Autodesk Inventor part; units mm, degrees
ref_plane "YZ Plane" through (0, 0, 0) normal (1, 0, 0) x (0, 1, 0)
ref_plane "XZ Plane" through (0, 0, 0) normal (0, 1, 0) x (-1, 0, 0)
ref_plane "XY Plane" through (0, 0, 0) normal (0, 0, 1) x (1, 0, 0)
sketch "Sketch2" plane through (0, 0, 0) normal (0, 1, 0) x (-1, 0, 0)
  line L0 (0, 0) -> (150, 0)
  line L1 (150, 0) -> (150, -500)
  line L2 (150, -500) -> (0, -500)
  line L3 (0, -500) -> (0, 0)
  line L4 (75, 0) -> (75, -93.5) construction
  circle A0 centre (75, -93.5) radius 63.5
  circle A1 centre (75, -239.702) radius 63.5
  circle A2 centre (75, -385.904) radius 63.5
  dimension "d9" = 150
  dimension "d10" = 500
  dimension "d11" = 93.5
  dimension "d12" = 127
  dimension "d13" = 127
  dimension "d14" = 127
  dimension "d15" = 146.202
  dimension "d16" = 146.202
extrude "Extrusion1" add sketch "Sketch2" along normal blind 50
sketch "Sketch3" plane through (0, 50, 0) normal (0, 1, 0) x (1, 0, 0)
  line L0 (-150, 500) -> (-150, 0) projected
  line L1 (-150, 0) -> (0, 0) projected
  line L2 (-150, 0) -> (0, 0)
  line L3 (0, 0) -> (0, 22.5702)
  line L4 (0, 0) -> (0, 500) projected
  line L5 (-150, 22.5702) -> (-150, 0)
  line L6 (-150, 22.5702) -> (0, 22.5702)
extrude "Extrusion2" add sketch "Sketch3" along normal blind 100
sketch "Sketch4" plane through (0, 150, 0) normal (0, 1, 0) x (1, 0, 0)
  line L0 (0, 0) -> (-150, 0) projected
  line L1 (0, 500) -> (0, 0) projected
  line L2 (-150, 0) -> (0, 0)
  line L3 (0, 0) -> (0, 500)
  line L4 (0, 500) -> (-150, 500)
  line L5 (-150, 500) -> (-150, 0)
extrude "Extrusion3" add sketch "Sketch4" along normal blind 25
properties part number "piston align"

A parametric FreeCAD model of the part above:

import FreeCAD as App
import Part
import Sketcher
from FreeCAD import Vector

doc = App.newDocument("Part")
body = doc.addObject("PartDesign::Body", "Body")

sketch1 = doc.addObject("Sketcher::SketchObject", "Sketch")
body.addObject(sketch1)
sketch1.AttachmentSupport = (doc.XZ_Plane, [""])
sketch1.MapMode = "FlatFace"
sketch1.addGeometry(Part.LineSegment(Vector(-150, 0, 0), Vector(0, 0, 0)), False)
sketch1.addGeometry(Part.LineSegment(Vector(0, 0, 0), Vector(0, -500, 0)), False)
sketch1.addGeometry(Part.LineSegment(Vector(0, -500, 0), Vector(-150, -500, 0)), False)
sketch1.addGeometry(Part.LineSegment(Vector(-150, -500, 0), Vector(-150, 0, 0)), False)
sketch1.addGeometry(Part.Circle(Vector(-75, -386, 0), Vector(0, 0, 1), 64), False)
sketch1.addGeometry(Part.Circle(Vector(-75, -240, 0), Vector(0, 0, 1), 64), False)
sketch1.addGeometry(Part.Circle(Vector(-75, -94, 0), Vector(0, 0, 1), 64), False)
sketch1.addConstraint(Sketcher.Constraint("Coincident", 0, 2, 1, 1))
sketch1.addConstraint(Sketcher.Constraint("Coincident", 1, 2, 2, 1))
sketch1.addConstraint(Sketcher.Constraint("Coincident", 2, 2, 3, 1))
sketch1.addConstraint(Sketcher.Constraint("Coincident", 3, 2, 0, 1))
sketch1.addConstraint(Sketcher.Constraint("Horizontal", 0))
sketch1.addConstraint(Sketcher.Constraint("Vertical", 1))
sketch1.addConstraint(Sketcher.Constraint("Horizontal", 2))
sketch1.addConstraint(Sketcher.Constraint("Vertical", 3))
sketch1.addConstraint(Sketcher.Constraint("Coincident", 0, 2, -1, 1))
sketch1.addConstraint(Sketcher.Constraint("Equal", 4, 5))
sketch1.addConstraint(Sketcher.Constraint("Equal", 5, 6))
sketch1.addConstraint(Sketcher.Constraint("Vertical", 4, 3, 5, 3))
sketch1.addConstraint(Sketcher.Constraint("Vertical", 5, 3, 6, 3))
sketch1.addConstraint(Sketcher.Constraint("Diameter", 4, 127.0))
sketch1.addConstraint(Sketcher.Constraint("DistanceX", 0, 1, 0, 2, 150.0))
sketch1.addConstraint(Sketcher.Constraint("DistanceY", 1, 2, 1, 1, 500.0))
sketch1.addConstraint(Sketcher.Constraint("DistanceY", 6, 3, -1, 1, 93.5))
sketch1.addConstraint(Sketcher.Constraint("DistanceX", 4, 3, -1, 1, 75.0))
sketch1.addConstraint(Sketcher.Constraint("DistanceY", 4, 3, 5, 3, 146.202))
sketch1.addConstraint(Sketcher.Constraint("DistanceY", 5, 3, 6, 3, 146.202))
pad1 = doc.addObject("PartDesign::Pad", "Pad")
body.addObject(pad1)
pad1.Profile = sketch1
pad1.Length = 50
pad1.Reversed = True

sketch2 = doc.addObject("Sketcher::SketchObject", "Sketch001")
body.addObject(sketch2)
sketch2.AttachmentSupport = (doc.XZ_Plane, [""])
sketch2.MapMode = "FlatFace"
sketch2.AttachmentOffset = App.Placement(Vector(0, 0, -50), App.Rotation())
sketch2.addGeometry(Part.LineSegment(Vector(0, -23, 0), Vector(-150, -23, 0)), False)
sketch2.addGeometry(Part.LineSegment(Vector(-150, -23, 0), Vector(-150, 0, 0)), False)
sketch2.addGeometry(Part.LineSegment(Vector(-150, 0, 0), Vector(0, 0, 0)), False)
sketch2.addGeometry(Part.LineSegment(Vector(0, 0, 0), Vector(0, -23, 0)), False)
sketch2.addConstraint(Sketcher.Constraint("Coincident", 0, 2, 1, 1))
sketch2.addConstraint(Sketcher.Constraint("Coincident", 1, 2, 2, 1))
sketch2.addConstraint(Sketcher.Constraint("Coincident", 2, 2, 3, 1))
sketch2.addConstraint(Sketcher.Constraint("Coincident", 3, 2, 0, 1))
sketch2.addConstraint(Sketcher.Constraint("Horizontal", 0))
sketch2.addConstraint(Sketcher.Constraint("Vertical", 1))
sketch2.addConstraint(Sketcher.Constraint("Horizontal", 2))
sketch2.addConstraint(Sketcher.Constraint("Vertical", 3))
sketch2.addConstraint(Sketcher.Constraint("Coincident", 2, 2, -1, 1))
sketch2.addConstraint(Sketcher.Constraint("DistanceX", 0, 2, 0, 1, 150.0))
sketch2.addConstraint(Sketcher.Constraint("DistanceY", 1, 1, 1, 2, 22.5702))
pad2 = doc.addObject("PartDesign::Pad", "Pad001")
body.addObject(pad2)
pad2.Profile = sketch2
pad2.Length = 100
pad2.Reversed = True

sketch3 = doc.addObject("Sketcher::SketchObject", "Sketch002")
body.addObject(sketch3)
sketch3.AttachmentSupport = (doc.XZ_Plane, [""])
sketch3.MapMode = "FlatFace"
sketch3.AttachmentOffset = App.Placement(Vector(0, 0, -150), App.Rotation())
sketch3.addGeometry(Part.LineSegment(Vector(-150, 0, 0), Vector(0, 0, 0)), False)
sketch3.addGeometry(Part.LineSegment(Vector(0, 0, 0), Vector(0, -500, 0)), False)
sketch3.addGeometry(Part.LineSegment(Vector(0, -500, 0), Vector(-150, -500, 0)), False)
sketch3.addGeometry(Part.LineSegment(Vector(-150, -500, 0), Vector(-150, 0, 0)), False)
sketch3.addConstraint(Sketcher.Constraint("Coincident", 0, 2, 1, 1))
sketch3.addConstraint(Sketcher.Constraint("Coincident", 1, 2, 2, 1))
sketch3.addConstraint(Sketcher.Constraint("Coincident", 2, 2, 3, 1))
sketch3.addConstraint(Sketcher.Constraint("Coincident", 3, 2, 0, 1))
sketch3.addConstraint(Sketcher.Constraint("Horizontal", 0))
sketch3.addConstraint(Sketcher.Constraint("Vertical", 1))
sketch3.addConstraint(Sketcher.Constraint("Horizontal", 2))
sketch3.addConstraint(Sketcher.Constraint("Vertical", 3))
sketch3.addConstraint(Sketcher.Constraint("Coincident", 0, 2, -1, 1))
sketch3.addConstraint(Sketcher.Constraint("DistanceX", 0, 1, 0, 2, 150.0))
sketch3.addConstraint(Sketcher.Constraint("DistanceY", 1, 2, 1, 1, 500.0))
pad3 = doc.addObject("PartDesign::Pad", "Pad002")
body.addObject(pad3)
pad3.Profile = sketch3
pad3.Length = 25
pad3.Reversed = True

doc.recompute()
